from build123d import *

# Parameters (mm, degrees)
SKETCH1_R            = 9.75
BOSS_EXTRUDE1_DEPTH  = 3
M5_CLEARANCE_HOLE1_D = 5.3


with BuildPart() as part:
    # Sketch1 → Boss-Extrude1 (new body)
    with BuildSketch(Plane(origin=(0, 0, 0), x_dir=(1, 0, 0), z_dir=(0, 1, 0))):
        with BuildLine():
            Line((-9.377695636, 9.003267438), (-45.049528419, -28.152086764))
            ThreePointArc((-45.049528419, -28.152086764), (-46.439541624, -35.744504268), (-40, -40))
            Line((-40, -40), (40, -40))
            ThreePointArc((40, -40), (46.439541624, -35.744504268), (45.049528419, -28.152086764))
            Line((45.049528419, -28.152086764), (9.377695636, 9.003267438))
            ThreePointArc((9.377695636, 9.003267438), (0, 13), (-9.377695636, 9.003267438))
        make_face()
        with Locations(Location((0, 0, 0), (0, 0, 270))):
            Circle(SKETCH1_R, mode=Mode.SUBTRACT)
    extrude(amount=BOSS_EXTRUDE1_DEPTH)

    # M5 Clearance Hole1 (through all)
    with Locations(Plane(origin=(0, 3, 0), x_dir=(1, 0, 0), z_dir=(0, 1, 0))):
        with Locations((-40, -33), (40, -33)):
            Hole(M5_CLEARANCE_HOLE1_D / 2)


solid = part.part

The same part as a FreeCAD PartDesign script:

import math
import FreeCAD as App
import Part
import Sketcher
from FreeCAD import Vector
Q = App.Units.Quantity

doc = App.newDocument("Part")
body = doc.addObject("PartDesign::Body", "Body")

sketch1 = doc.addObject("Sketcher::SketchObject", "Sketch")
body.addObject(sketch1)
sketch1.AttachmentSupport = (doc.XZ_Plane, [""])
sketch1.MapMode = "FlatFace"
sketch1.addGeometry([
    Part.LineSegment(Vector(-9, -9, 0), Vector(-45, 28, 0)),
    Part.ArcOfCircle(Part.Circle(Vector(-40, 33, 0), Vector(0, 0, 1), 7), math.radians(90), math.radians(224)),
    Part.LineSegment(Vector(-40, 40, 0), Vector(40, 40, 0)),
    Part.ArcOfCircle(Part.Circle(Vector(40, 33, 0), Vector(0, 0, 1), 7), math.radians(-44), math.radians(90)),
    Part.LineSegment(Vector(45, 28, 0), Vector(9, -9, 0)),
    Part.ArcOfCircle(Part.Circle(Vector(0, 0, 0), Vector(0, 0, 1), 13), math.radians(-136), math.radians(-44)),
    Part.Circle(Vector(0, 0, 0), Vector(0, 0, 1), 10),
], False)
sketch1.addConstraint([
    Sketcher.Constraint("Tangent", 0, 2, 1, 2),
    Sketcher.Constraint("Tangent", 1, 1, 2, 1),
    Sketcher.Constraint("Tangent", 2, 2, 3, 2),
    Sketcher.Constraint("Tangent", 3, 1, 4, 1),
    Sketcher.Constraint("Tangent", 4, 2, 5, 2),
    Sketcher.Constraint("Tangent", 5, 1, 0, 1),
    Sketcher.Constraint("Horizontal", 2),
    Sketcher.Constraint("Coincident", 5, 3, -1, 1),
    Sketcher.Constraint("Coincident", 6, 3, -1, 1),
    Sketcher.Constraint("Equal", 1, 3),
    Sketcher.Constraint("Horizontal", 0, 2, 3, 1),
    Sketcher.Constraint("Radius", 1, Q("7 mm")),
    Sketcher.Constraint("Radius", 5, Q("13 mm")),
    Sketcher.Constraint("Diameter", 6, Q("19.5 mm")),
    Sketcher.Constraint("DistanceX", 2, 1, 2, 2, Q("80 mm")),
    Sketcher.Constraint("DistanceY", -1, 1, 1, 3, Q("33 mm")),
])
pad1 = doc.addObject("PartDesign::Pad", "Pad")
body.addObject(pad1)
pad1.Profile = sketch1
pad1.Length = 3
pad1.Reversed = True

sketch2 = doc.addObject("Sketcher::SketchObject", "Sketch001")
body.addObject(sketch2)
sketch2.AttachmentSupport = (doc.XZ_Plane, [""])
sketch2.MapMode = "FlatFace"
sketch2.AttachmentOffset = App.Placement(Vector(0, 0, -3), App.Rotation())
sketch2.addGeometry([
    Part.Circle(Vector(-40, 33, 0), Vector(0, 0, 1), 2.6),
    Part.Circle(Vector(40, 33, 0), Vector(0, 0, 1), 2.6),
], False)
sketch2.addConstraint([
    Sketcher.Constraint("Equal", 0, 1),
    Sketcher.Constraint("Symmetric", 0, 3, 1, 3, -2),
    Sketcher.Constraint("Diameter", 0, Q("5.3 mm")),
    Sketcher.Constraint("DistanceX", 0, 3, -1, 1, Q("40 mm")),
    Sketcher.Constraint("DistanceY", -1, 1, 0, 3, Q("33 mm")),
])
doc.recompute()
hole = doc.addObject("PartDesign::Hole", "Hole")
body.addObject(hole)
hole.Profile = sketch2
hole.ThreadType = "None"
hole.Diameter = 5.3
hole.DepthType = "ThroughAll"
hole.Reversed = True

doc.recompute()
